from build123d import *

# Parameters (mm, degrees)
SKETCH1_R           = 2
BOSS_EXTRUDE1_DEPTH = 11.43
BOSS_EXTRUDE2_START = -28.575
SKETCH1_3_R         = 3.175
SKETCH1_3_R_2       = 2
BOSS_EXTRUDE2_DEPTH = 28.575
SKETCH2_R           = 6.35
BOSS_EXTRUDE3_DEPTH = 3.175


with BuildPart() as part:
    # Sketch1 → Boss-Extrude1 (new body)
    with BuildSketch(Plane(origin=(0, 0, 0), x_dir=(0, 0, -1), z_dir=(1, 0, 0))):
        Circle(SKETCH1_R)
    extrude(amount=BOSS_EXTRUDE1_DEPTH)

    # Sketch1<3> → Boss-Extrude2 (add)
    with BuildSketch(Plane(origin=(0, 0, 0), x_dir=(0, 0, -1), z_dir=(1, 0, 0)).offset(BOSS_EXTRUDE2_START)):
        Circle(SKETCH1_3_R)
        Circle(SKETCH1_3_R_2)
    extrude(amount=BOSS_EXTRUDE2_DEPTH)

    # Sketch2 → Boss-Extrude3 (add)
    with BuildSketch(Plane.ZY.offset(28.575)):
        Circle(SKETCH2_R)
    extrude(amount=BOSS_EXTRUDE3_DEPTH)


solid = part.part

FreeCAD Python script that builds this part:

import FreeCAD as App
import Part
import Sketcher
from FreeCAD import Vector
Q = App.Units.Quantity

doc = App.newDocument("Part")
body = doc.addObject("PartDesign::Body", "Body")

sketch1 = body.newObject("Sketcher::SketchObject", "Sketch")
sketch1.AttachmentSupport = (doc.getObject("YZ_Plane"), [""])
sketch1.MapMode = "FlatFace"
sketch1.addGeometry(Part.Circle(Vector(0, 0, 0), Vector(0, 0, 1), 2), False)
sketch1.addConstraint(Sketcher.Constraint("Coincident", 0, 3, -1, 1))
sketch1.addConstraint(Sketcher.Constraint("Diameter", 0, 4.0))
pad1 = body.newObject("PartDesign::Pad", "Pad")
pad1.Profile = sketch1
pad1.Length = Q("0.45 in")

sketch2 = body.newObject("Sketcher::SketchObject", "Sketch001")
sketch2.AttachmentSupport = (doc.getObject("YZ_Plane"), [""])
sketch2.MapMode = "FlatFace"
sketch2.AttachmentOffset = App.Placement(Vector(0, 0, -1.125 * 25.4), App.Rotation())
sketch2.addGeometry(Part.Circle(Vector(0, 0, 0), Vector(0, 0, 1), 3.175), False)
sketch2.addConstraint(Sketcher.Constraint("Coincident", 0, 3, -1, 1))
sketch2.addConstraint(Sketcher.Constraint("Diameter", 0, Q("0.25 in")))
pad2 = body.newObject("PartDesign::Pad", "Pad001")
pad2.Profile = sketch2
pad2.Length = Q("1.125 in")

sketch3 = body.newObject("Sketcher::SketchObject", "Sketch002")
sketch3.AttachmentSupport = (doc.getObject("YZ_Plane"), [""])
sketch3.MapMode = "FlatFace"
sketch3.AttachmentOffset = App.Placement(Vector(0, 0, -1.125 * 25.4), App.Rotation())
sketch3.addGeometry(Part.Circle(Vector(0, 0, 0), Vector(0, 0, 1), 6.35), False)
sketch3.addConstraint(Sketcher.Constraint("Coincident", 0, 3, -1, 1))
sketch3.addConstraint(Sketcher.Constraint("Diameter", 0, Q("0.5 in")))
pad3 = body.newObject("PartDesign::Pad", "Pad002")
pad3.Profile = sketch3
pad3.Length = Q("0.125 in")
pad3.Reversed = True

doc.recompute()
